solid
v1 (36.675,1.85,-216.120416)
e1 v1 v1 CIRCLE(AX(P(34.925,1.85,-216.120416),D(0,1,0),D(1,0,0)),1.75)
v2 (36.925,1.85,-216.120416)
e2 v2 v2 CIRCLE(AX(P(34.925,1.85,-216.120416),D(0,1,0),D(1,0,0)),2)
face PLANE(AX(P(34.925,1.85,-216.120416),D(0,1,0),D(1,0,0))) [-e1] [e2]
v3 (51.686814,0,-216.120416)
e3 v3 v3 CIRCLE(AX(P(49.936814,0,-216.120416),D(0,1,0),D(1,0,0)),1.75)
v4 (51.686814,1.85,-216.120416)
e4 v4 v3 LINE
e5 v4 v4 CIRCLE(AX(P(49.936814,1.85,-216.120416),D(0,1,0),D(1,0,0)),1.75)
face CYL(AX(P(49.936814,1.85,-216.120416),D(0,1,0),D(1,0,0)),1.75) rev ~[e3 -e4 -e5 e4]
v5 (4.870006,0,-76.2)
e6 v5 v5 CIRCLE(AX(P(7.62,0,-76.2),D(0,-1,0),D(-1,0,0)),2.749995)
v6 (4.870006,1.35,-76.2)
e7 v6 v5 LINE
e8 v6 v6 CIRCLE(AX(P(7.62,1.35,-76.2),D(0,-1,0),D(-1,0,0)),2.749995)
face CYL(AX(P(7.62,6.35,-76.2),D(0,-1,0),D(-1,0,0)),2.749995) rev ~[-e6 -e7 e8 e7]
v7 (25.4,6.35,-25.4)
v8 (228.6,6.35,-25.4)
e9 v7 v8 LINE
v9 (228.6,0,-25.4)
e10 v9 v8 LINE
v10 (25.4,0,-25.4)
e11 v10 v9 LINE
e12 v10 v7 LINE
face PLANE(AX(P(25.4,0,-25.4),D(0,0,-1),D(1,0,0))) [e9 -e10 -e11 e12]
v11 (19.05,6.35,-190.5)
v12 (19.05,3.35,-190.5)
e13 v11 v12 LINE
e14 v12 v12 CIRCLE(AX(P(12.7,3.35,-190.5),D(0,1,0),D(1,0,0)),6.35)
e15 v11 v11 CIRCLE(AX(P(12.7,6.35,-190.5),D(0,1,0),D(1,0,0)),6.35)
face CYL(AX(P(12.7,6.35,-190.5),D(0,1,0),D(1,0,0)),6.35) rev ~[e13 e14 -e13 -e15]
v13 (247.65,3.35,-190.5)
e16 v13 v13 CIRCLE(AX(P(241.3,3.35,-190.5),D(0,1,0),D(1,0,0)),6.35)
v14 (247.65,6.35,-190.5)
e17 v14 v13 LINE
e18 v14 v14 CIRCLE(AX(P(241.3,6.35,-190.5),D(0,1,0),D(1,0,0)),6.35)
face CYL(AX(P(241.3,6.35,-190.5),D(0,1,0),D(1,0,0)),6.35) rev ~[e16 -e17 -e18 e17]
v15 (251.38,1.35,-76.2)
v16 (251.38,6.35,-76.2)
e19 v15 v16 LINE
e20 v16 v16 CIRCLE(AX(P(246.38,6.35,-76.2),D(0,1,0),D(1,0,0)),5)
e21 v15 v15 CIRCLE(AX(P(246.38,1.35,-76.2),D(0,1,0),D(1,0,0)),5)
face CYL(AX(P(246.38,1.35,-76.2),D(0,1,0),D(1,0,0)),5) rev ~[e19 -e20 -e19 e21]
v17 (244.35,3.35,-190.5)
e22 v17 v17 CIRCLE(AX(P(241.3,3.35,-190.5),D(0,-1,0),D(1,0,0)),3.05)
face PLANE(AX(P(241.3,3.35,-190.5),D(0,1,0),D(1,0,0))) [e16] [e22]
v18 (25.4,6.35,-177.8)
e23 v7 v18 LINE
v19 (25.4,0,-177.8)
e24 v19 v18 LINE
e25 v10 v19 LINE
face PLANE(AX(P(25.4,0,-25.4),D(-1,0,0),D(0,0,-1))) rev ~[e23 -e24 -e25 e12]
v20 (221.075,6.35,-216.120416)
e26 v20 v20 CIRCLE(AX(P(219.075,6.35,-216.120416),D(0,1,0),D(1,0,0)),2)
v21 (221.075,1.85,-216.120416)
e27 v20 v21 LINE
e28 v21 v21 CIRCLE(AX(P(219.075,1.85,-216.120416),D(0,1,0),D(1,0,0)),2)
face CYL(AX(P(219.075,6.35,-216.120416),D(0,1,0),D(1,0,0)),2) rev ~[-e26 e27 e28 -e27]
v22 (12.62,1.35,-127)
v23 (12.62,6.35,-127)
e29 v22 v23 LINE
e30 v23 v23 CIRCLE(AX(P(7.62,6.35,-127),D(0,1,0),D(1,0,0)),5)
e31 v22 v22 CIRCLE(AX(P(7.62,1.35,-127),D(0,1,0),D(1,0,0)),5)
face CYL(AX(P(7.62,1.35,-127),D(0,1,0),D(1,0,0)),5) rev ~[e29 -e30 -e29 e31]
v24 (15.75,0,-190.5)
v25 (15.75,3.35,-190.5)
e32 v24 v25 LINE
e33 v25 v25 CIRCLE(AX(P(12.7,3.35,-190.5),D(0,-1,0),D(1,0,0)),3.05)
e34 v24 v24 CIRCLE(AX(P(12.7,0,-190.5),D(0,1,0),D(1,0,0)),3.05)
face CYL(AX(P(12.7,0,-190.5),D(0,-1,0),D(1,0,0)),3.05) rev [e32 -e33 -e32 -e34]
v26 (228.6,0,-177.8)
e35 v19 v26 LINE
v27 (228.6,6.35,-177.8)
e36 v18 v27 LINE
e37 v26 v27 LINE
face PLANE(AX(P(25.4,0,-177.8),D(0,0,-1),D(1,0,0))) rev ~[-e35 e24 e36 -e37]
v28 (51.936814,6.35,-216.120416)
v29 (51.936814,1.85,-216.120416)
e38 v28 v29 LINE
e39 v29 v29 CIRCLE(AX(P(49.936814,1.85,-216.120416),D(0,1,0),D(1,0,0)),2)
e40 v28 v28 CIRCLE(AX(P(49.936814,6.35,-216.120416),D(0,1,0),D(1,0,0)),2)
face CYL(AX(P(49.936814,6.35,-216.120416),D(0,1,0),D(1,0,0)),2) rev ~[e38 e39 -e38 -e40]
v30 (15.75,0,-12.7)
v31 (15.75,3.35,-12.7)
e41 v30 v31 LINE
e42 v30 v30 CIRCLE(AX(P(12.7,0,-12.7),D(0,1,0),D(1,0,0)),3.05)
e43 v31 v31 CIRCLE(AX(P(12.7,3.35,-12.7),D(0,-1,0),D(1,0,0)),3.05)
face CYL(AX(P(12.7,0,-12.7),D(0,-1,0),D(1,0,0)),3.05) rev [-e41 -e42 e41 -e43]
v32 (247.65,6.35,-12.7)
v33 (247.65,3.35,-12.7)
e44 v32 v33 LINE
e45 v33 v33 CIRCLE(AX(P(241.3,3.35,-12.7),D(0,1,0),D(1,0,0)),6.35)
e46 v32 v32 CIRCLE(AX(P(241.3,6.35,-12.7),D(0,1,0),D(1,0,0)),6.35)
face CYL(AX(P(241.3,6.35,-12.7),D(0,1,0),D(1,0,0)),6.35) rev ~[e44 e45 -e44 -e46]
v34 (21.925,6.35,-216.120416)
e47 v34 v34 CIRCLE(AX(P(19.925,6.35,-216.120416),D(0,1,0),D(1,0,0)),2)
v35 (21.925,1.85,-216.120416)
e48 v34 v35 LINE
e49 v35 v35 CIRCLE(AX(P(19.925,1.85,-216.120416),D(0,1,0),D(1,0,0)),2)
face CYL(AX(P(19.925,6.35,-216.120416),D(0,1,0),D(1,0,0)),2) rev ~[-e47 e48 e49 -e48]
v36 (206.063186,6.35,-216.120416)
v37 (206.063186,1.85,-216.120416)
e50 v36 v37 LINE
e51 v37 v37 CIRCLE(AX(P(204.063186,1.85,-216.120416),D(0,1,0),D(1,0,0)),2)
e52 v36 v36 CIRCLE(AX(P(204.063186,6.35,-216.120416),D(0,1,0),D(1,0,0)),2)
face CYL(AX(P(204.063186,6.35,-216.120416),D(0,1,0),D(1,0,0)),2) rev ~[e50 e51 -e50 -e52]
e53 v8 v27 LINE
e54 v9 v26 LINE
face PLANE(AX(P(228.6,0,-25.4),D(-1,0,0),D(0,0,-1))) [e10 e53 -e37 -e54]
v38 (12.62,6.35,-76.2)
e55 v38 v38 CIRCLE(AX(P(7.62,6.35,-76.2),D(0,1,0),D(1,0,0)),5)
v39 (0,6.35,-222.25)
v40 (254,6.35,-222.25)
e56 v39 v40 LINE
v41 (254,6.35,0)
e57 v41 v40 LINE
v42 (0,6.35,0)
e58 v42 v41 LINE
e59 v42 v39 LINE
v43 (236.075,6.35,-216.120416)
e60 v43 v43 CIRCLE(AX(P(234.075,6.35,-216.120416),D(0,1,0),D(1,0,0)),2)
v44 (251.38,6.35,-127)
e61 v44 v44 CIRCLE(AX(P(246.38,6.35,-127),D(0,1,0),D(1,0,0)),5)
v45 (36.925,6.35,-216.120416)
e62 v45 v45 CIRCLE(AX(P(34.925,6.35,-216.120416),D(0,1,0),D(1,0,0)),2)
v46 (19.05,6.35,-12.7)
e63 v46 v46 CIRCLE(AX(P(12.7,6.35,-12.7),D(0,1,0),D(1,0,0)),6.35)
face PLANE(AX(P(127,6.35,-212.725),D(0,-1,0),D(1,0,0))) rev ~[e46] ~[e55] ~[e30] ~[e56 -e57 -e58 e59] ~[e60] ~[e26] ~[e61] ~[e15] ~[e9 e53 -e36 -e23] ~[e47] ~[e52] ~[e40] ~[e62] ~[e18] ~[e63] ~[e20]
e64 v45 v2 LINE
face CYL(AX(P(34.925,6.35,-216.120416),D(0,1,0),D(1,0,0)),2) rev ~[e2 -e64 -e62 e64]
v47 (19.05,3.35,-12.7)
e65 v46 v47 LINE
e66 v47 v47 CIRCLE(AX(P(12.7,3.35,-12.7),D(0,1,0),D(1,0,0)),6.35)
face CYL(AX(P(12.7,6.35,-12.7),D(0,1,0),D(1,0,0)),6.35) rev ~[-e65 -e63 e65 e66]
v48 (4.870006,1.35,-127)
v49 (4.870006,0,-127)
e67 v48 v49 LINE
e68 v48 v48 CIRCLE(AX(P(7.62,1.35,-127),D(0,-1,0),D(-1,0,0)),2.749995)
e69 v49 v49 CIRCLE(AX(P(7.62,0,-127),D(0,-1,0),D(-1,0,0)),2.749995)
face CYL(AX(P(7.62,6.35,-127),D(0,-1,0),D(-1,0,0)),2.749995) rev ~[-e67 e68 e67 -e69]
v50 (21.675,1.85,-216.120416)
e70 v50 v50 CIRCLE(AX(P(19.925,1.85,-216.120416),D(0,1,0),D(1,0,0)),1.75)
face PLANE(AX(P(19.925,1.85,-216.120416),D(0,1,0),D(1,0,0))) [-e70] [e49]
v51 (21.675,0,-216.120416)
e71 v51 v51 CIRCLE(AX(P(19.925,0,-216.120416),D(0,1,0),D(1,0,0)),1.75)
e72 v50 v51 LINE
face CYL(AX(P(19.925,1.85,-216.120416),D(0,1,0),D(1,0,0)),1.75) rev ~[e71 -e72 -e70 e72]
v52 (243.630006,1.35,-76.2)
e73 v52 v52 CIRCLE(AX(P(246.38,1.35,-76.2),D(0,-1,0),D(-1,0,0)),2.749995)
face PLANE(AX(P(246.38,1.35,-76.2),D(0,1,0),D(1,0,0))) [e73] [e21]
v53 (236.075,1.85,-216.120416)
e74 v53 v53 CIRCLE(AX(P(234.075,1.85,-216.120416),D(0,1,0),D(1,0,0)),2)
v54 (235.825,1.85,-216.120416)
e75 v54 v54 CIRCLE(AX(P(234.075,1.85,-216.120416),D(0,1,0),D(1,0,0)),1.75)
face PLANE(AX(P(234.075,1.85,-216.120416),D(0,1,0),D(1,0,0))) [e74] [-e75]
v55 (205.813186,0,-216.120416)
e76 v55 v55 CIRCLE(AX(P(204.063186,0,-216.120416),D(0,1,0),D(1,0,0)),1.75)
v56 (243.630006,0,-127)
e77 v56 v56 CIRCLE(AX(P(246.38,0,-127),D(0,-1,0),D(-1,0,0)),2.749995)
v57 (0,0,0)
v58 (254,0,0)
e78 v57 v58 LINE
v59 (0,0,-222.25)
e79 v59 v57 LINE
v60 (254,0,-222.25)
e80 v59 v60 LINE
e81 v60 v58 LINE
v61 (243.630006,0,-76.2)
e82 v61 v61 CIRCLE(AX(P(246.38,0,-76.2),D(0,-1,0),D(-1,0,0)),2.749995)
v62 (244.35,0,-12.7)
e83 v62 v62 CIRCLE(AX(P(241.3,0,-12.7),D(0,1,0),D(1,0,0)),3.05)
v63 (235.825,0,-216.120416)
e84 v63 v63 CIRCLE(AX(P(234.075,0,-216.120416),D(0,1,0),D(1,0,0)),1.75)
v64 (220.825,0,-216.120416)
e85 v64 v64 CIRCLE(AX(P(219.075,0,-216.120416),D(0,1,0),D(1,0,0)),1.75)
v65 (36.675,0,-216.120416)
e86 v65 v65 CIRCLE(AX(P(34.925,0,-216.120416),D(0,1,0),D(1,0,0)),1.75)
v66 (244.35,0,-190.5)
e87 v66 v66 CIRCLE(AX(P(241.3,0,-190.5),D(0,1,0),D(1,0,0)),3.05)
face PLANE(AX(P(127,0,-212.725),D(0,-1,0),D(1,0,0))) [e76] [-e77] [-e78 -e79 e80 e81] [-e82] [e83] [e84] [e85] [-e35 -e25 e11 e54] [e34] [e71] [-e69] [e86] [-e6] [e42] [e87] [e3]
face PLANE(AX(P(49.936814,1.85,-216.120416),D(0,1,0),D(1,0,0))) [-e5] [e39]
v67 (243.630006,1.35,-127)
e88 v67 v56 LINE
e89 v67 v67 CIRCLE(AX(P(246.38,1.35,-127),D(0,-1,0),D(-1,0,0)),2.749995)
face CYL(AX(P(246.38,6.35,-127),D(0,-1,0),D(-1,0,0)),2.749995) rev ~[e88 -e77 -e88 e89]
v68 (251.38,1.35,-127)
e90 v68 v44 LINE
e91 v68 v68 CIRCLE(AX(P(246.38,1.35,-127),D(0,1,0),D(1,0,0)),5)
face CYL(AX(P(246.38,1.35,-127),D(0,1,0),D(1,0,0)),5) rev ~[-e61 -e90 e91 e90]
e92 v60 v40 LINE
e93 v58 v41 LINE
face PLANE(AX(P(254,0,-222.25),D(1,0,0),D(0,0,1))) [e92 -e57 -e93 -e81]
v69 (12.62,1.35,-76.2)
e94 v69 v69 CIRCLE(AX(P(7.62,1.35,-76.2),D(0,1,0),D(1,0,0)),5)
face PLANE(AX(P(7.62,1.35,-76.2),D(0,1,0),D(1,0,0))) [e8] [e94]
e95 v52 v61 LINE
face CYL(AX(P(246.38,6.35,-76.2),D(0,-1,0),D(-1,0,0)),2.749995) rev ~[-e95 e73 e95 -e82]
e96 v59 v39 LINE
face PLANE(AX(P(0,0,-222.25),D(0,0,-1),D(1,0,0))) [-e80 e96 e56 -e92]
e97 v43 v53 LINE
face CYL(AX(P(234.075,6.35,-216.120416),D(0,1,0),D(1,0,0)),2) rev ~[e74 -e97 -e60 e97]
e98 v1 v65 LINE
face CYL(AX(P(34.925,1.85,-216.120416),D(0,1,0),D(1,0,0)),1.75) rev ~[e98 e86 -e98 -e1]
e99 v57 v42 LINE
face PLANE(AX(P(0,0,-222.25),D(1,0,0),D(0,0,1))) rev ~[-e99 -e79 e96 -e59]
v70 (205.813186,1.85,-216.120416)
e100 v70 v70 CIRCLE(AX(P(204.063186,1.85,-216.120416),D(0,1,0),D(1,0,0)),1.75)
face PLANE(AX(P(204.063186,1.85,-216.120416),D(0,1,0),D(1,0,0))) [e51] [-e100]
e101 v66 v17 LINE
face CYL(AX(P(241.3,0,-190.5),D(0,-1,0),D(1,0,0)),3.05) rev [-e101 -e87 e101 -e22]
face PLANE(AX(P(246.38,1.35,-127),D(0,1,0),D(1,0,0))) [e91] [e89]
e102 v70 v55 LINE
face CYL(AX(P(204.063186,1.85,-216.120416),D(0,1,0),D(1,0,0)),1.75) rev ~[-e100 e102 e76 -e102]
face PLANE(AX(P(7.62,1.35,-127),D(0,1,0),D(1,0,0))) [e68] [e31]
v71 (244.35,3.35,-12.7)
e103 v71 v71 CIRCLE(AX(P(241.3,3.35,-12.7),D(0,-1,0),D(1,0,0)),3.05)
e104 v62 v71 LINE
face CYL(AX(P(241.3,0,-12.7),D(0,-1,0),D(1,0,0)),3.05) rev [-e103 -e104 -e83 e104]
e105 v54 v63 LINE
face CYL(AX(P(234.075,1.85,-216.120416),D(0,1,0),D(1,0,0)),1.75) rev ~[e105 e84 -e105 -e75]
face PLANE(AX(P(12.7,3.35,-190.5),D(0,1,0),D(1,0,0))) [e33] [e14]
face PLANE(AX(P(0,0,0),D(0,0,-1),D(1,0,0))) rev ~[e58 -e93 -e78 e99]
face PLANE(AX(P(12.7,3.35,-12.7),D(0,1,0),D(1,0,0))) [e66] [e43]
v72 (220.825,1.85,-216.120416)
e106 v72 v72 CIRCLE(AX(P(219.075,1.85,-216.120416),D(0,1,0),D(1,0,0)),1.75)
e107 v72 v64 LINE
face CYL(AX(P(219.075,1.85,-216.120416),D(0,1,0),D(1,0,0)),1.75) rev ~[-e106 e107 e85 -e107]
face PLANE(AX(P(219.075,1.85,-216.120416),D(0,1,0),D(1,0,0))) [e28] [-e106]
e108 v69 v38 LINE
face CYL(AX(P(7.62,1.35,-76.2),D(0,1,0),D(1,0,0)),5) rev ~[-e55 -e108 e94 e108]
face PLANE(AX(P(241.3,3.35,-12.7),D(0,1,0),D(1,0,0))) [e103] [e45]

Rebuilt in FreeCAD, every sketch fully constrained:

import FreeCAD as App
import Part
import Sketcher
from FreeCAD import Vector
Q = App.Units.Quantity


def add_polygon(sketch, points):
    """Adds a closed chain of lines whose ends are joined by coincident constraints."""
    first, n = sketch.GeometryCount, len(points)
    for a, b in zip(points, points[1:] + points[:1]):
        sketch.addGeometry(Part.LineSegment(App.Vector(*a, 0), App.Vector(*b, 0)), False)
    for i in range(n):
        sketch.addConstraint(Sketcher.Constraint("Coincident", first + i, 2, first + (i + 1) % n, 1))

doc = App.newDocument("Part")
body = doc.addObject("PartDesign::Body", "Body")

sketch1 = doc.addObject("Sketcher::SketchObject", "Sketch")
body.addObject(sketch1)
sketch1.AttachmentSupport = (doc.XZ_Plane, [""])
sketch1.MapMode = "FlatFace"
add_polygon(sketch1, [(0, -203.2), (0, 0), (254, 0), (254, -203.2)])
sketch1.addGeometry(Part.Circle(Vector(12.7, -12.7, 0), Vector(0, 0, 1), 3.05), False)
sketch1.addGeometry(Part.Circle(Vector(241.3, -12.7, 0), Vector(0, 0, 1), 3.05), False)
sketch1.addGeometry(Part.Circle(Vector(12.7, -190.5, 0), Vector(0, 0, 1), 3.05), False)
add_polygon(sketch1, [(228.6, -25.4), (25.4, -25.4), (25.4, -177.8), (228.6, -177.8)])
sketch1.addGeometry(Part.Circle(Vector(241.3, -190.5, 0), Vector(0, 0, 1), 3.05), False)
sketch1.addConstraint([
    Sketcher.Constraint("Vertical", 0),
    Sketcher.Constraint("Horizontal", 1),
    Sketcher.Constraint("Vertical", 2),
    Sketcher.Constraint("Horizontal", 3),
    Sketcher.Constraint("Horizontal", 7),
    Sketcher.Constraint("Vertical", 8),
    Sketcher.Constraint("Horizontal", 9),
    Sketcher.Constraint("Vertical", 10),
    Sketcher.Constraint("Coincident", 0, 2, -1, 1),
    Sketcher.Constraint("Equal", 4, 5),
    Sketcher.Constraint("Equal", 5, 6),
    Sketcher.Constraint("Equal", 6, 11),
    Sketcher.Constraint("Horizontal", 4, 3, 5, 3),
    Sketcher.Constraint("Horizontal", 6, 3, 11, 3),
    Sketcher.Constraint("Vertical", 4, 3, 6, 3),
    Sketcher.Constraint("Vertical", 5, 3, 11, 3),
    Sketcher.Constraint("Equal", 9, 0),
    Sketcher.Constraint("DistanceX", 1, 1, 1, 2, Q("10 in")),
    Sketcher.Constraint("DistanceX", 7, 2, 7, 1, Q("8 in")),
    Sketcher.Constraint("DistanceY", 8, 2, 8, 1, Q("6 in")),
    Sketcher.Constraint("DistanceX", -1, 1, 7, 2, Q("1 in")),
    Sketcher.Constraint("DistanceY", 7, 2, -1, 1, Q("1 in")),
    Sketcher.Constraint("DistanceX", 4, 3, 5, 3, Q("9 in")),
    Sketcher.Constraint("DistanceY", 6, 3, 4, 3, Q("7 in")),
    Sketcher.Constraint("DistanceX", -1, 1, 4, 3, Q("0.5 in")),
    Sketcher.Constraint("DistanceY", 4, 3, -1, 1, Q("0.5 in")),
    Sketcher.Constraint("Diameter", 4, 6.1),
])
pad1 = doc.addObject("PartDesign::Pad", "Pad")
body.addObject(pad1)
pad1.Profile = sketch1
pad1.Length = Q("0.25 in")
pad1.Reversed = True

sketch2 = doc.addObject("Sketcher::SketchObject", "Sketch001")
body.addObject(sketch2)
sketch2.AttachmentSupport = (doc.XZ_Plane, [""])
sketch2.MapMode = "FlatFace"
sketch2.AttachmentOffset = App.Placement(Vector(0, 0, -0.25 * 25.4), App.Rotation())
sketch2.addGeometry([
    Part.Circle(Vector(12.7, -190.5, 0), Vector(0, 0, 1), 6.35),
    Part.Circle(Vector(241.3, -190.5, 0), Vector(0, 0, 1), 6.35),
    Part.Circle(Vector(241.3, -12.7, 0), Vector(0, 0, 1), 6.35),
    Part.Circle(Vector(12.7, -12.7, 0), Vector(0, 0, 1), 6.35),
], False)
sketch2.addConstraint([
    Sketcher.Constraint("Equal", 0, 1),
    Sketcher.Constraint("Equal", 1, 2),
    Sketcher.Constraint("Equal", 2, 3),
    Sketcher.Constraint("Horizontal", 0, 3, 1, 3),
    Sketcher.Constraint("Horizontal", 2, 3, 3, 3),
    Sketcher.Constraint("Vertical", 1, 3, 2, 3),
    Sketcher.Constraint("Vertical", 0, 3, 3, 3),
    Sketcher.Constraint("Diameter", 0, Q("0.5 in")),
    Sketcher.Constraint("DistanceX", 0, 3, 1, 3, Q("9 in")),
    Sketcher.Constraint("DistanceY", 1, 3, 2, 3, Q("7 in")),
    Sketcher.Constraint("DistanceX", -1, 1, 0, 3, Q("0.5 in")),
    Sketcher.Constraint("DistanceY", 0, 3, -1, 1, Q("7.5 in")),
])
pocket1 = doc.addObject("PartDesign::Pocket", "Pocket")
body.addObject(pocket1)
pocket1.Profile = sketch2
pocket1.Length = 3
pocket1.Reversed = True

sketch3 = doc.addObject("Sketcher::SketchObject", "Sketch002")
body.addObject(sketch3)
sketch3.AttachmentSupport = (doc.XZ_Plane, [""])
sketch3.MapMode = "FlatFace"
sketch3.AttachmentOffset = App.Placement(Vector(0, 0, -0.25 * 25.4), App.Rotation())
sketch3.addGeometry([
    Part.Circle(Vector(246.38, -76.2, 0), Vector(0, 0, 1), 2.749995),
    Part.Circle(Vector(246.38, -127, 0), Vector(0, 0, 1), 2.749995),
    Part.Circle(Vector(7.62, -76.2, 0), Vector(0, 0, 1), 2.749995),
    Part.Circle(Vector(7.62, -127, 0), Vector(0, 0, 1), 2.749995),
], False)
sketch3.addConstraint([
    Sketcher.Constraint("Equal", 0, 1),
    Sketcher.Constraint("Equal", 1, 2),
    Sketcher.Constraint("Equal", 2, 3),
    Sketcher.Constraint("Horizontal", 0, 3, 2, 3),
    Sketcher.Constraint("Horizontal", 1, 3, 3, 3),
    Sketcher.Constraint("Vertical", 0, 3, 1, 3),
    Sketcher.Constraint("Vertical", 2, 3, 3, 3),
    Sketcher.Constraint("DistanceY", 0, 3, -1, 1, Q("3 in")),
    Sketcher.Constraint("DistanceY", 1, 3, -1, 1, Q("5 in")),
    Sketcher.Constraint("DistanceX", -1, 1, 0, 3, Q("9.7 in")),
    Sketcher.Constraint("DistanceX", -1, 1, 2, 3, Q("0.3 in")),
    Sketcher.Constraint("Diameter", 0, 5.499989),
])
doc.recompute()
hole = doc.addObject("PartDesign::Hole", "Hole")
body.addObject(hole)
hole.Profile = sketch3
hole.ThreadType = "None"
hole.Diameter = 5.499989
hole.DepthType = "ThroughAll"
hole.HoleCutType = "Counterbore"
hole.HoleCutDiameter = 10
hole.HoleCutDepth = 5
hole.Reversed = True

sketch4 = doc.addObject("Sketcher::SketchObject", "Sketch003")
body.addObject(sketch4)
sketch4.AttachmentSupport = (doc.XZ_Plane, [""])
sketch4.MapMode = "FlatFace"
add_polygon(sketch4, [(0, -203.2), (0, -222.25), (254, -222.25), (254, -203.2)])
sketch4.addConstraint([
    Sketcher.Constraint("Vertical", 0),
    Sketcher.Constraint("Horizontal", 1),
    Sketcher.Constraint("Vertical", 2),
    Sketcher.Constraint("Horizontal", 3),
    Sketcher.Constraint("PointOnObject", 0, 2, -2),
    Sketcher.Constraint("DistanceX", 1, 1, 1, 2, Q("10 in")),
    Sketcher.Constraint("DistanceY", 2, 2, -1, 1, Q("8 in")),
    Sketcher.Constraint("DistanceY", 0, 2, 0, 1, Q("0.75 in")),
])
pad2 = doc.addObject("PartDesign::Pad", "Pad001")
body.addObject(pad2)
pad2.Profile = sketch4
pad2.Length = Q("0.25 in")
pad2.Reversed = True

sketch5 = doc.addObject("Sketcher::SketchObject", "Sketch004")
body.addObject(sketch5)
sketch5.AttachmentSupport = (doc.XZ_Plane, [""])
sketch5.MapMode = "FlatFace"
sketch5.AttachmentOffset = App.Placement(Vector(0, 0, -0.25 * 25.4), App.Rotation())
sketch5.addGeometry([
    Part.Circle(Vector(19.925, -216.120416, 0), Vector(0, 0, 1), 2),
    Part.Circle(Vector(34.925, -216.120416, 0), Vector(0, 0, 1), 2),
    Part.Circle(Vector(49.936814, -216.120416, 0), Vector(0, 0, 1), 2),
    Part.Circle(Vector(204.063186, -216.120416, 0), Vector(0, 0, 1), 2),
    Part.Circle(Vector(219.075, -216.120416, 0), Vector(0, 0, 1), 2),
    Part.Circle(Vector(234.075, -216.120416, 0), Vector(0, 0, 1), 2),
], False)
sketch5.addConstraint([
    Sketcher.Constraint("Equal", 0, 1),
    Sketcher.Constraint("Equal", 1, 2),
    Sketcher.Constraint("Equal", 2, 3),
    Sketcher.Constraint("Equal", 3, 4),
    Sketcher.Constraint("Equal", 4, 5),
    Sketcher.Constraint("Horizontal", 0, 3, 1, 3),
    Sketcher.Constraint("Horizontal", 1, 3, 2, 3),
    Sketcher.Constraint("Horizontal", 2, 3, 3, 3),
    Sketcher.Constraint("Horizontal", 3, 3, 4, 3),
    Sketcher.Constraint("Horizontal", 4, 3, 5, 3),
    Sketcher.Constraint("Diameter", 0, 4.0),
    Sketcher.Constraint("DistanceX", 1, 3, 4, 3, Q("7.25 in")),
    Sketcher.Constraint("DistanceX", -1, 1, 1, 3, Q("1.375 in")),
    Sketcher.Constraint("DistanceX", -1, 1, 0, 3, 19.925),
    Sketcher.Constraint("DistanceX", -1, 1, 5, 3, 234.075),
    Sketcher.Constraint("DistanceY", 0, 3, -1, 1, 216.120416),
    Sketcher.Constraint("DistanceX", -1, 1, 2, 3, 49.936814),
    Sketcher.Constraint("DistanceX", -1, 1, 3, 3, 204.063186),
])
pocket2 = doc.addObject("PartDesign::Pocket", "Pocket001")
body.addObject(pocket2)
pocket2.Profile = sketch5
pocket2.Length = 4.5
pocket2.Reversed = True

sketch6 = doc.addObject("Sketcher::SketchObject", "Sketch005")
body.addObject(sketch6)
sketch6.AttachmentSupport = (doc.XZ_Plane, [""])
sketch6.MapMode = "FlatFace"
sketch6.AttachmentOffset = App.Placement(Vector(0, 0, -1.85), App.Rotation())
sketch6.addGeometry([
    Part.Circle(Vector(19.925, -216.120416, 0), Vector(0, 0, 1), 1.75),
    Part.Circle(Vector(34.925, -216.120416, 0), Vector(0, 0, 1), 1.75),
    Part.Circle(Vector(49.936814, -216.120416, 0), Vector(0, 0, 1), 1.75),
    Part.Circle(Vector(204.063186, -216.120416, 0), Vector(0, 0, 1), 1.75),
    Part.Circle(Vector(219.075, -216.120416, 0), Vector(0, 0, 1), 1.75),
    Part.Circle(Vector(234.075, -216.120416, 0), Vector(0, 0, 1), 1.75),
], False)
sketch6.addConstraint([
    Sketcher.Constraint("Equal", 0, 1),
    Sketcher.Constraint("Equal", 1, 2),
    Sketcher.Constraint("Equal", 2, 3),
    Sketcher.Constraint("Equal", 3, 4),
    Sketcher.Constraint("Equal", 4, 5),
    Sketcher.Constraint("Horizontal", 0, 3, 1, 3),
    Sketcher.Constraint("Horizontal", 1, 3, 2, 3),
    Sketcher.Constraint("Horizontal", 2, 3, 3, 3),
    Sketcher.Constraint("Horizontal", 3, 3, 4, 3),
    Sketcher.Constraint("Horizontal", 4, 3, 5, 3),
    Sketcher.Constraint("Diameter", 0, 3.5),
    Sketcher.Constraint("DistanceX", 1, 3, 4, 3, Q("7.25 in")),
    Sketcher.Constraint("DistanceX", -1, 1, 1, 3, Q("1.375 in")),
    Sketcher.Constraint("DistanceX", -1, 1, 0, 3, 19.925),
    Sketcher.Constraint("DistanceX", -1, 1, 5, 3, 234.075),
    Sketcher.Constraint("DistanceY", 0, 3, -1, 1, 216.120416),
    Sketcher.Constraint("DistanceX", -1, 1, 2, 3, 49.936814),
    Sketcher.Constraint("DistanceX", -1, 1, 3, 3, 204.063186),
])
pocket3 = doc.addObject("PartDesign::Pocket", "Pocket002")
body.addObject(pocket3)
pocket3.Profile = sketch6
pocket3.Length = 4.5
pocket3.Reversed = True

doc.recompute()
